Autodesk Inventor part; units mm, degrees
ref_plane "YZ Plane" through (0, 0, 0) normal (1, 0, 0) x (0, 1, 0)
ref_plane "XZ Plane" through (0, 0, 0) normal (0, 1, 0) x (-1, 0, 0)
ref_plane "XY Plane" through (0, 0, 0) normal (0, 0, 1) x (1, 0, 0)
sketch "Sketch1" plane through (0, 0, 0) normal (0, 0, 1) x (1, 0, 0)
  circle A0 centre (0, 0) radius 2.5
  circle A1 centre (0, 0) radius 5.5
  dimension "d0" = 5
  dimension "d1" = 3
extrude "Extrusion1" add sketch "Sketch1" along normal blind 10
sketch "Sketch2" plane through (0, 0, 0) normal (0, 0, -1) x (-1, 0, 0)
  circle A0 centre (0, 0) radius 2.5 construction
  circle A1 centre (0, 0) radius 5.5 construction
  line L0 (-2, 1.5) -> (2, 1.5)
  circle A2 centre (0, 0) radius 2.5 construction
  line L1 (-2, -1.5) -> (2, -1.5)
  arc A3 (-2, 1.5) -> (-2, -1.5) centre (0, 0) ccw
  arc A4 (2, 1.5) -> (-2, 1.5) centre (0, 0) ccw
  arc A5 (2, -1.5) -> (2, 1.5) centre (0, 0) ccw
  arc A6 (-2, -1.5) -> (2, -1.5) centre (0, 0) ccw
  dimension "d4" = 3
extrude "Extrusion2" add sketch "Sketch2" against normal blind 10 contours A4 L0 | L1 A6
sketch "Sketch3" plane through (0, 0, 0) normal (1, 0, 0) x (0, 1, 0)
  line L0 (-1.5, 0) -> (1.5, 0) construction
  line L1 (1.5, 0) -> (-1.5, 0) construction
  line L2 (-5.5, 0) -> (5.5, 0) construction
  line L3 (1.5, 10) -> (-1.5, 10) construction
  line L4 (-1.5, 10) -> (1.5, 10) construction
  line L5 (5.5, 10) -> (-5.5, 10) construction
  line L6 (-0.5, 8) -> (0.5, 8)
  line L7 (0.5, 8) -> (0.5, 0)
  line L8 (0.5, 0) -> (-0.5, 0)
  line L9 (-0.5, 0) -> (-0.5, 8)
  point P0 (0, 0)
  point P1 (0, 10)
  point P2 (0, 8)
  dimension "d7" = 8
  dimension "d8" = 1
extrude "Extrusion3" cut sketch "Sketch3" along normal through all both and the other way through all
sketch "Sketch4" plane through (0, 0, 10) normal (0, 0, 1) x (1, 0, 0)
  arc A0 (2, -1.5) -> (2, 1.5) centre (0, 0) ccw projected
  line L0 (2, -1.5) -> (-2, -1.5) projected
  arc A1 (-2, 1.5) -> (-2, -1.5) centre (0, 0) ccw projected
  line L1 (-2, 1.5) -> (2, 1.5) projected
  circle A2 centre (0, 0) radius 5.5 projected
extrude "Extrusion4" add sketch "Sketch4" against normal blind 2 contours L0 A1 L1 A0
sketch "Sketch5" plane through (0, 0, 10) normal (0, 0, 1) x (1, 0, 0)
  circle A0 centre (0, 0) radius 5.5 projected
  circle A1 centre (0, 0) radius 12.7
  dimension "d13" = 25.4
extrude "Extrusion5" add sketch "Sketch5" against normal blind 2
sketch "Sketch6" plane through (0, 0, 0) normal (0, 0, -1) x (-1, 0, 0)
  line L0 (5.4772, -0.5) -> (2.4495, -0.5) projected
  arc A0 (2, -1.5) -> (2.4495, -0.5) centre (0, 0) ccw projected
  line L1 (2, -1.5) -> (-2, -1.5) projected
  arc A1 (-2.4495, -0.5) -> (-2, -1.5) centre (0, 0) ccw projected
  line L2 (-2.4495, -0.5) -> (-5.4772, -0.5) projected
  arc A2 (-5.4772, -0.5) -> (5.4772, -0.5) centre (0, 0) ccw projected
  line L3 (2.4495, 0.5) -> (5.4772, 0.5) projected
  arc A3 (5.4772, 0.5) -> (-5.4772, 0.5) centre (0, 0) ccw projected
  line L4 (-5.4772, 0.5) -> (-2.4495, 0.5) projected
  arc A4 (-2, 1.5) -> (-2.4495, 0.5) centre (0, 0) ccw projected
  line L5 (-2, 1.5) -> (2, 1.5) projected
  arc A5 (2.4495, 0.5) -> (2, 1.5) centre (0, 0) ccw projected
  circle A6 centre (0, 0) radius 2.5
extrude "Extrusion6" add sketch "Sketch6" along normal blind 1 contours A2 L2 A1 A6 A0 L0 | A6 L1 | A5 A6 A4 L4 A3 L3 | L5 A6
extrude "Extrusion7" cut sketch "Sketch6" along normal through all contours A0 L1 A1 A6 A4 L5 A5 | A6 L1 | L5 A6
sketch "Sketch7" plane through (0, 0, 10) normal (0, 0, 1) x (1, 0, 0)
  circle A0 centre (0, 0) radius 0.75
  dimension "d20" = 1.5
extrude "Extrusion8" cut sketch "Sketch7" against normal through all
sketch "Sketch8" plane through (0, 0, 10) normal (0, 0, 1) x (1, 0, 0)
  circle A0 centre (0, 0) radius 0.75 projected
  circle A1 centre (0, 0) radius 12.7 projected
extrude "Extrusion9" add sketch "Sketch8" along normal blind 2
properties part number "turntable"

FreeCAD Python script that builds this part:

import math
import FreeCAD as App
import Part
import Sketcher

V = App.Vector
Q = App.Units.Quantity

doc = App.newDocument("Part")
body = doc.addObject("PartDesign::Body", "Body")

# Sketch on XY plane
sketch1 = doc.addObject("Sketcher::SketchObject", "Sketch")
body.addObject(sketch1)
sketch1.AttachmentSupport = (doc.XY_Plane, [""])
sketch1.MapMode = "FlatFace"
sketch1.addGeometry(Part.Circle(V(0, 0, 0), V(0, 0, 1), 5.5), False)
sketch1.addGeometry(Part.Circle(V(0, 0, 0), V(0, 0, 1), 2.5), False)
sketch1.addConstraint(Sketcher.Constraint("Coincident", 0, 3, -1, 1))
sketch1.addConstraint(Sketcher.Constraint("Coincident", 1, 3, -1, 1))
sketch1.addConstraint(Sketcher.Constraint("Diameter", 1, Q("5 mm")))
sketch1.addConstraint(Sketcher.Constraint("Diameter", 0, Q("11 mm")))
pad1 = doc.addObject("PartDesign::Pad", "Pad")
body.addObject(pad1)
pad1.Profile = sketch1
pad1.Length = 10

# Sketch on XY plane
sketch2 = doc.addObject("Sketcher::SketchObject", "Sketch001")
body.addObject(sketch2)
sketch2.AttachmentSupport = (doc.XY_Plane, [""])
sketch2.MapMode = "FlatFace"
sketch2.addGeometry(Part.ArcOfCircle(Part.Circle(V(0, 0, 0), V(0, 0, 1), 2.5), math.radians(37), math.radians(143)), False)
sketch2.addGeometry(Part.LineSegment(V(2, 1.5, 0), V(-2, 1.5, 0)), False)
sketch2.addGeometry(Part.LineSegment(V(-2, -1.5, 0), V(2, -1.5, 0)), False)
sketch2.addGeometry(Part.ArcOfCircle(Part.Circle(V(0, 0, 0), V(0, 0, 1), 2.5), math.radians(-143), math.radians(-37)), False)
sketch2.addConstraint(Sketcher.Constraint("Coincident", 0, 1, 1, 1))
sketch2.addConstraint(Sketcher.Constraint("Coincident", 1, 2, 0, 2))
sketch2.addConstraint(Sketcher.Constraint("Coincident", 2, 1, 3, 1))
sketch2.addConstraint(Sketcher.Constraint("Coincident", 3, 2, 2, 2))
sketch2.addConstraint(Sketcher.Constraint("Horizontal", 1))
sketch2.addConstraint(Sketcher.Constraint("Horizontal", 2))
sketch2.addConstraint(Sketcher.Constraint("Coincident", 0, 3, -1, 1))
sketch2.addConstraint(Sketcher.Constraint("Coincident", 3, 3, -1, 1))
sketch2.addConstraint(Sketcher.Constraint("Equal", 0, 3))
sketch2.addConstraint(Sketcher.Constraint("Vertical", 1, 2, 2, 1))
sketch2.addConstraint(Sketcher.Constraint("DistanceY", 2, 1, 1, 2, Q("3 mm")))
sketch2.addConstraint(Sketcher.Constraint("Radius", 0, Q("2.5 mm")))
pad2 = doc.addObject("PartDesign::Pad", "Pad001")
body.addObject(pad2)
pad2.Profile = sketch2
pad2.Length = 10

# Sketch on YZ plane
sketch3 = doc.addObject("Sketcher::SketchObject", "Sketch002")
body.addObject(sketch3)
sketch3.AttachmentSupport = (doc.YZ_Plane, [""])
sketch3.MapMode = "FlatFace"
sketch3.addGeometry(Part.LineSegment(V(0.5, 8, 0), V(-0.5, 8, 0)), False)
sketch3.addGeometry(Part.LineSegment(V(-0.5, 8, 0), V(-0.5, 0, 0)), False)
sketch3.addGeometry(Part.LineSegment(V(-0.5, 0, 0), V(0.5, 0, 0)), False)
sketch3.addGeometry(Part.LineSegment(V(0.5, 0, 0), V(0.5, 8, 0)), False)
sketch3.addConstraint(Sketcher.Constraint("Coincident", 0, 2, 1, 1))
sketch3.addConstraint(Sketcher.Constraint("Coincident", 1, 2, 2, 1))
sketch3.addConstraint(Sketcher.Constraint("Coincident", 2, 2, 3, 1))
sketch3.addConstraint(Sketcher.Constraint("Coincident", 3, 2, 0, 1))
sketch3.addConstraint(Sketcher.Constraint("Horizontal", 0))
sketch3.addConstraint(Sketcher.Constraint("Vertical", 1))
sketch3.addConstraint(Sketcher.Constraint("Horizontal", 2))
sketch3.addConstraint(Sketcher.Constraint("Vertical", 3))
sketch3.addConstraint(Sketcher.Constraint("Symmetric", 1, 2, 2, 2, -1, 1))
sketch3.addConstraint(Sketcher.Constraint("DistanceX", 0, 2, 0, 1, Q("1 mm")))
sketch3.addConstraint(Sketcher.Constraint("DistanceY", 1, 2, 1, 1, Q("8 mm")))
pocket1 = doc.addObject("PartDesign::Pocket", "Pocket")
body.addObject(pocket1)
pocket1.Profile = sketch3
pocket1.Type = "ThroughAll"
pocket1.Midplane = True

# Sketch on XY plane
sketch4 = doc.addObject("Sketcher::SketchObject", "Sketch003")
body.addObject(sketch4)
sketch4.AttachmentSupport = (doc.XY_Plane, [""])
sketch4.MapMode = "FlatFace"
sketch4.AttachmentOffset = App.Placement(V(0, 0, 10), App.Rotation())
sketch4.addGeometry(Part.LineSegment(V(-2, -1.5, 0), V(2, -1.5, 0)), False)
sketch4.addGeometry(Part.ArcOfCircle(Part.Circle(V(0, 0, 0), V(0, 0, 1), 2.5), math.radians(-37), math.radians(37)), False)
sketch4.addGeometry(Part.LineSegment(V(2, 1.5, 0), V(-2, 1.5, 0)), False)
sketch4.addGeometry(Part.ArcOfCircle(Part.Circle(V(0, 0, 0), V(0, 0, 1), 2.5), math.radians(143), math.radians(217)), False)
sketch4.addConstraint(Sketcher.Constraint("Coincident", 0, 2, 1, 1))
sketch4.addConstraint(Sketcher.Constraint("Coincident", 1, 2, 2, 1))
sketch4.addConstraint(Sketcher.Constraint("Coincident", 2, 2, 3, 1))
sketch4.addConstraint(Sketcher.Constraint("Coincident", 3, 2, 0, 1))
sketch4.addConstraint(Sketcher.Constraint("Horizontal", 0))
sketch4.addConstraint(Sketcher.Constraint("Horizontal", 2))
sketch4.addConstraint(Sketcher.Constraint("Coincident", 1, 3, -1, 1))
sketch4.addConstraint(Sketcher.Constraint("Coincident", 3, 3, -1, 1))
sketch4.addConstraint(Sketcher.Constraint("Equal", 1, 3))
sketch4.addConstraint(Sketcher.Constraint("Vertical", 0, 2, 1, 2))
sketch4.addConstraint(Sketcher.Constraint("Radius", 1, Q("2.5 mm")))
sketch4.addConstraint(Sketcher.Constraint("DistanceX", 0, 1, 0, 2, Q("4 mm")))
pad3 = doc.addObject("PartDesign::Pad", "Pad002")
body.addObject(pad3)
pad3.Profile = sketch4
pad3.Length = 2
pad3.Reversed = True

# Sketch on XY plane
sketch5 = doc.addObject("Sketcher::SketchObject", "Sketch004")
body.addObject(sketch5)
sketch5.AttachmentSupport = (doc.XY_Plane, [""])
sketch5.MapMode = "FlatFace"
sketch5.AttachmentOffset = App.Placement(V(0, 0, 10), App.Rotation())
sketch5.addGeometry(Part.Circle(V(0, 0, 0), V(0, 0, 1), 13), False)
sketch5.addGeometry(Part.Circle(V(0, 0, 0), V(0, 0, 1), 6), False)
sketch5.addConstraint(Sketcher.Constraint("Coincident", 0, 3, -1, 1))
sketch5.addConstraint(Sketcher.Constraint("Coincident", 1, 3, -1, 1))
sketch5.addConstraint(Sketcher.Constraint("Diameter", 0, Q("25.4 mm")))
sketch5.addConstraint(Sketcher.Constraint("Diameter", 1, Q("11 mm")))
pad4 = doc.addObject("PartDesign::Pad", "Pad003")
body.addObject(pad4)
pad4.Profile = sketch5
pad4.Length = 2
pad4.Reversed = True

# Sketch on XY plane
sketch6 = doc.addObject("Sketcher::SketchObject", "Sketch005")
body.addObject(sketch6)
sketch6.AttachmentSupport = (doc.XY_Plane, [""])
sketch6.MapMode = "FlatFace"
sketch6.addGeometry(Part.ArcOfCircle(Part.Circle(V(0, 0, 0), V(0, 0, 1), 5.5), math.radians(-175), math.radians(-5)), False)
sketch6.addGeometry(Part.LineSegment(V(-5.5, -0.5, 0), V(-2.4, -0.5, 0)), False)
sketch6.addGeometry(Part.ArcOfCircle(Part.Circle(V(0, 0, 0), V(0, 0, 1), 2.5), math.radians(-168), math.radians(-143)), False)
sketch6.addGeometry(Part.LineSegment(V(-2, -1.5, 0), V(2, -1.5, 0)), False)
sketch6.addGeometry(Part.ArcOfCircle(Part.Circle(V(0, 0, 0), V(0, 0, 1), 2.5), math.radians(-37), math.radians(-12)), False)
sketch6.addGeometry(Part.LineSegment(V(2.4, -0.5, 0), V(5.5, -0.5, 0)), False)
sketch6.addGeometry(Part.ArcOfCircle(Part.Circle(V(0, 0, 0), V(0, 0, 1), 2.5), math.radians(143), math.radians(168)), False)
sketch6.addGeometry(Part.LineSegment(V(-2.4, 0.5, 0), V(-5.5, 0.5, 0)), False)
sketch6.addGeometry(Part.ArcOfCircle(Part.Circle(V(0, 0, 0), V(0, 0, 1), 5.5), math.radians(5), math.radians(175)), False)
sketch6.addGeometry(Part.LineSegment(V(5.5, 0.5, 0), V(2.4, 0.5, 0)), False)
sketch6.addGeometry(Part.ArcOfCircle(Part.Circle(V(0, 0, 0), V(0, 0, 1), 2.5), math.radians(12), math.radians(37)), False)
sketch6.addGeometry(Part.LineSegment(V(2, 1.5, 0), V(-2, 1.5, 0)), False)
sketch6.addConstraint(Sketcher.Constraint("Coincident", 0, 1, 1, 1))
sketch6.addConstraint(Sketcher.Constraint("Coincident", 1, 2, 2, 1))
sketch6.addConstraint(Sketcher.Constraint("Coincident", 2, 2, 3, 1))
sketch6.addConstraint(Sketcher.Constraint("Coincident", 3, 2, 4, 1))
sketch6.addConstraint(Sketcher.Constraint("Coincident", 4, 2, 5, 1))
sketch6.addConstraint(Sketcher.Constraint("Coincident", 5, 2, 0, 2))
sketch6.addConstraint(Sketcher.Constraint("Coincident", 6, 2, 7, 1))
sketch6.addConstraint(Sketcher.Constraint("Coincident", 7, 2, 8, 2))
sketch6.addConstraint(Sketcher.Constraint("Coincident", 8, 1, 9, 1))
sketch6.addConstraint(Sketcher.Constraint("Coincident", 9, 2, 10, 1))
sketch6.addConstraint(Sketcher.Constraint("Coincident", 10, 2, 11, 1))
sketch6.addConstraint(Sketcher.Constraint("Coincident", 11, 2, 6, 1))
sketch6.addConstraint(Sketcher.Constraint("Horizontal", 1))
sketch6.addConstraint(Sketcher.Constraint("Horizontal", 3))
sketch6.addConstraint(Sketcher.Constraint("Horizontal", 5))
sketch6.addConstraint(Sketcher.Constraint("Horizontal", 7))
sketch6.addConstraint(Sketcher.Constraint("Horizontal", 9))
sketch6.addConstraint(Sketcher.Constraint("Horizontal", 11))
sketch6.addConstraint(Sketcher.Constraint("Coincident", 0, 3, -1, 1))
sketch6.addConstraint(Sketcher.Constraint("Coincident", 2, 3, -1, 1))
sketch6.addConstraint(Sketcher.Constraint("Coincident", 4, 3, -1, 1))
sketch6.addConstraint(Sketcher.Constraint("Coincident", 6, 3, -1, 1))
sketch6.addConstraint(Sketcher.Constraint("Coincident", 8, 3, -1, 1))
sketch6.addConstraint(Sketcher.Constraint("Coincident", 10, 3, -1, 1))
sketch6.addConstraint(Sketcher.Constraint("Equal", 2, 4))
sketch6.addConstraint(Sketcher.Constraint("Equal", 4, 6))
sketch6.addConstraint(Sketcher.Constraint("Equal", 0, 8))
sketch6.addConstraint(Sketcher.Constraint("Equal", 6, 10))
sketch6.addConstraint(Sketcher.Constraint("Horizontal", 1, 2, 4, 2))
sketch6.addConstraint(Sketcher.Constraint("Horizontal", 7, 2, 8, 1))
sketch6.addConstraint(Sketcher.Constraint("Vertical", 1, 2, 6, 2))
sketch6.addConstraint(Sketcher.Constraint("Vertical", 3, 2, 10, 2))
sketch6.addConstraint(Sketcher.Constraint("Radius", 0, Q("5.5 mm")))
sketch6.addConstraint(Sketcher.Constraint("Radius", 2, Q("2.5 mm")))
sketch6.addConstraint(Sketcher.Constraint("DistanceX", 3, 1, 3, 2, Q("4 mm")))
sketch6.addConstraint(Sketcher.Constraint("DistanceY", 2, 2, 1, 2, Q("1 mm")))
pad5 = doc.addObject("PartDesign::Pad", "Pad004")
body.addObject(pad5)
pad5.Profile = sketch6
pad5.Length = 1
pad5.Reversed = True

# Sketch on XY plane
sketch7 = doc.addObject("Sketcher::SketchObject", "Sketch006")
body.addObject(sketch7)
sketch7.AttachmentSupport = (doc.XY_Plane, [""])
sketch7.MapMode = "FlatFace"
sketch7.addGeometry(Part.ArcOfCircle(Part.Circle(V(0, 0, 0), V(0, 0, 1), 2.5), math.radians(-168), math.radians(-143)), False)
sketch7.addGeometry(Part.ArcOfCircle(Part.Circle(V(0, 0, 0), V(0, 0, 1), 2.5), math.radians(168), math.radians(192)), False)
sketch7.addGeometry(Part.ArcOfCircle(Part.Circle(V(0, 0, 0), V(0, 0, 1), 2.5), math.radians(143), math.radians(168)), False)
sketch7.addGeometry(Part.ArcOfCircle(Part.Circle(V(0, 0, 0), V(0, 0, 1), 2.5), math.radians(37), math.radians(143)), False)
sketch7.addGeometry(Part.ArcOfCircle(Part.Circle(V(0, 0, 0), V(0, 0, 1), 2.5), math.radians(12), math.radians(37)), False)
sketch7.addGeometry(Part.ArcOfCircle(Part.Circle(V(0, 0, 0), V(0, 0, 1), 2.5), math.radians(-12), math.radians(12)), False)
sketch7.addGeometry(Part.ArcOfCircle(Part.Circle(V(0, 0, 0), V(0, 0, 1), 2.5), math.radians(-37), math.radians(-12)), False)
sketch7.addGeometry(Part.ArcOfCircle(Part.Circle(V(0, 0, 0), V(0, 0, 1), 2.5), math.radians(-143), math.radians(-37)), False)
sketch7.addConstraint(Sketcher.Constraint("Tangent", 0, 1, 1, 2))
sketch7.addConstraint(Sketcher.Constraint("Tangent", 1, 1, 2, 2))
sketch7.addConstraint(Sketcher.Constraint("Tangent", 2, 1, 3, 2))
sketch7.addConstraint(Sketcher.Constraint("Tangent", 3, 1, 4, 2))
sketch7.addConstraint(Sketcher.Constraint("Tangent", 4, 1, 5, 2))
sketch7.addConstraint(Sketcher.Constraint("Tangent", 5, 1, 6, 2))
sketch7.addConstraint(Sketcher.Constraint("Tangent", 6, 1, 7, 2))
sketch7.addConstraint(Sketcher.Constraint("Tangent", 7, 1, 0, 2))
sketch7.addConstraint(Sketcher.Constraint("Coincident", 0, 3, -1, 1))
sketch7.addConstraint(Sketcher.Constraint("Coincident", 2, 3, -1, 1))
sketch7.addConstraint(Sketcher.Constraint("Coincident", 4, 3, -1, 1))
sketch7.addConstraint(Sketcher.Constraint("Equal", 4, 5))
sketch7.addConstraint(Sketcher.Constraint("Horizontal", 2, 1, 3, 1))
sketch7.addConstraint(Sketcher.Constraint("Horizontal", 1, 1, 4, 1))
sketch7.addConstraint(Sketcher.Constraint("Horizontal", 0, 1, 5, 1))
sketch7.addConstraint(Sketcher.Constraint("Horizontal", 6, 1, 7, 1))
sketch7.addConstraint(Sketcher.Constraint("Vertical", 0, 1, 1, 1))
sketch7.addConstraint(Sketcher.Constraint("Vertical", 3, 1, 6, 1))
sketch7.addConstraint(Sketcher.Constraint("Radius", 0, Q("2.5 mm")))
sketch7.addConstraint(Sketcher.Constraint("DistanceX", 2, 1, -1, 1, Q("2 mm")))
sketch7.addConstraint(Sketcher.Constraint("DistanceY", 0, 1, 1, 1, Q("1 mm")))
pocket2 = doc.addObject("PartDesign::Pocket", "Pocket001")
body.addObject(pocket2)
pocket2.Profile = sketch7
pocket2.Type = "ThroughAll"

# Sketch on XY plane
sketch8 = doc.addObject("Sketcher::SketchObject", "Sketch007")
body.addObject(sketch8)
sketch8.AttachmentSupport = (doc.XY_Plane, [""])
sketch8.MapMode = "FlatFace"
sketch8.AttachmentOffset = App.Placement(V(0, 0, 10), App.Rotation())
sketch8.addGeometry(Part.Circle(V(0, 0, 0), V(0, 0, 1), 0.8), False)
sketch8.addConstraint(Sketcher.Constraint("Coincident", 0, 3, -1, 1))
sketch8.addConstraint(Sketcher.Constraint("Diameter", 0, Q("1.5 mm")))
pocket3 = doc.addObject("PartDesign::Pocket", "Pocket002")
body.addObject(pocket3)
pocket3.Profile = sketch8
pocket3.Type = "ThroughAll"

# Sketch on XY plane
sketch9 = doc.addObject("Sketcher::SketchObject", "Sketch008")
body.addObject(sketch9)
sketch9.AttachmentSupport = (doc.XY_Plane, [""])
sketch9.MapMode = "FlatFace"
sketch9.AttachmentOffset = App.Placement(V(0, 0, 10), App.Rotation())
sketch9.addGeometry(Part.Circle(V(0, 0, 0), V(0, 0, 1), 12.7), False)
sketch9.addGeometry(Part.Circle(V(0, 0, 0), V(0, 0, 1), 0.8), False)
sketch9.addConstraint(Sketcher.Constraint("Coincident", 0, 3, -1, 1))
sketch9.addConstraint(Sketcher.Constraint("Coincident", 1, 3, -1, 1))
sketch9.addConstraint(Sketcher.Constraint("Diameter", 0, Q("25.4 mm")))
sketch9.addConstraint(Sketcher.Constraint("Diameter", 1, Q("1.5 mm")))
pad6 = doc.addObject("PartDesign::Pad", "Pad005")
body.addObject(pad6)
pad6.Profile = sketch9
pad6.Length = 2

doc.recompute()
